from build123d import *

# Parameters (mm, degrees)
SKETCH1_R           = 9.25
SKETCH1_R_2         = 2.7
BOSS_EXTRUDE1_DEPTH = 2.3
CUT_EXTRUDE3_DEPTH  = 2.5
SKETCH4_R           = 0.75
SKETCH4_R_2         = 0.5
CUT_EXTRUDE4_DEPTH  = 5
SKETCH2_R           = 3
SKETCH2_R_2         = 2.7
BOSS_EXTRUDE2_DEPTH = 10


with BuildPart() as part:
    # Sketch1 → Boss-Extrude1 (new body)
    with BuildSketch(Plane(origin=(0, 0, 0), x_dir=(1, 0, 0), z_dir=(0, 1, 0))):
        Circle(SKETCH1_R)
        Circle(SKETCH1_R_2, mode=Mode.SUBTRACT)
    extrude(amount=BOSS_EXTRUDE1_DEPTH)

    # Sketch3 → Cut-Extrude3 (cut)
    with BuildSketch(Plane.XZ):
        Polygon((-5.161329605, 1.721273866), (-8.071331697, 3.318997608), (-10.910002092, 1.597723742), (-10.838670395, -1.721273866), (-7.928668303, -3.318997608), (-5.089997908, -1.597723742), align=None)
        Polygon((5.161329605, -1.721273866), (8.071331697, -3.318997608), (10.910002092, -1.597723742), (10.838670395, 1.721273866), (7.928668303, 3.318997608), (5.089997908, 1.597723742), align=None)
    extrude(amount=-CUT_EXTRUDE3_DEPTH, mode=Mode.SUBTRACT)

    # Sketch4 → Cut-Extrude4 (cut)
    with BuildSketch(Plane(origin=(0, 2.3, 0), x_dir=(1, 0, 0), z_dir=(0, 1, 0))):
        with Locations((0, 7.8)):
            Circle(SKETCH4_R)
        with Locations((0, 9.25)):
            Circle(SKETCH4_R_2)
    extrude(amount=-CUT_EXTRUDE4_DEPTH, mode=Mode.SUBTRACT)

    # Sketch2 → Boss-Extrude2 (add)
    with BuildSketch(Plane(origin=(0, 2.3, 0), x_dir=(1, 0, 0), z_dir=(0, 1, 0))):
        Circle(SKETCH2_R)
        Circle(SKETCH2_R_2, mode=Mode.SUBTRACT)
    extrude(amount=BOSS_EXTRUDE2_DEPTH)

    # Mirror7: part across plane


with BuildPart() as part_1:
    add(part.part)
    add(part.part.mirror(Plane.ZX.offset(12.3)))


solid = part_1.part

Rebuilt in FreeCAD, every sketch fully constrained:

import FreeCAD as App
import Part
import Sketcher

V = App.Vector
Q = App.Units.Quantity


def add_polygon(sketch, points):
    """Adds a closed chain of lines whose ends are joined by coincident constraints."""
    first, n = sketch.GeometryCount, len(points)
    for a, b in zip(points, points[1:] + points[:1]):
        sketch.addGeometry(Part.LineSegment(App.Vector(*a, 0), App.Vector(*b, 0)), False)
    for i in range(n):
        sketch.addConstraint(Sketcher.Constraint("Coincident", first + i, 2, first + (i + 1) % n, 1))

doc = App.newDocument("Part")
body = doc.addObject("PartDesign::Body", "Body")

# Sketch on XZ plane
sketch1 = body.newObject("Sketcher::SketchObject", "Sketch")
sketch1.AttachmentSupport = (doc.getObject("XZ_Plane"), [""])
sketch1.MapMode = "FlatFace"
sketch1.addGeometry([
    Part.Circle(V(0, 0, 0), V(0, 0, 1), 9.2),
    Part.Circle(V(0, 0, 0), V(0, 0, 1), 2.7),
], False)
sketch1.addConstraint([
    Sketcher.Constraint("Coincident", 0, 3, -1, 1),
    Sketcher.Constraint("Coincident", 1, 3, -1, 1),
    Sketcher.Constraint("Diameter", 0, Q("18.5 mm")),
    Sketcher.Constraint("Diameter", 1, Q("5.4 mm")),
])
pad1 = body.newObject("PartDesign::Pad", "Pad")
pad1.Profile = sketch1
pad1.Length = 2.3
pad1.Reversed = True

# Sketch on XZ plane
sketch2 = body.newObject("Sketcher::SketchObject", "Sketch001")
sketch2.AttachmentSupport = (doc.getObject("XZ_Plane"), [""])
sketch2.MapMode = "FlatFace"
add_polygon(sketch2, [(-5.2, 1.7), (-8.1, 3.3), (-10.9, 1.6), (-10.8, -1.7), (-7.9, -3.3), (-5.1, -1.6)])  # lines 0-5
add_polygon(sketch2, [(5.2, -1.7), (8.1, -3.3), (10.9, -1.6), (10.8, 1.7), (7.9, 3.3), (5.1, 1.6)])  # lines 6-11
sketch2.addConstraint([
    Sketcher.Constraint("Symmetric", 0, 2, 6, 2, -1, 1),
    Sketcher.Constraint("Symmetric", 1, 2, 7, 2, -1, 1),
    Sketcher.Constraint("Symmetric", 2, 2, 8, 2, -1, 1),
    Sketcher.Constraint("Symmetric", 3, 2, 9, 2, -1, 1),
    Sketcher.Constraint("Symmetric", 4, 2, 10, 2, -1, 1),
    Sketcher.Constraint("Symmetric", 5, 2, 11, 2, -1, 1),
    Sketcher.Constraint("Parallel", 0, 3),
    Sketcher.Constraint("Parallel", 1, 4),
    Sketcher.Constraint("Parallel", 2, 5),
    Sketcher.Constraint("Horizontal", 3, 2, 6, 2),
    Sketcher.Constraint("Horizontal", 4, 2, 7, 2),
    Sketcher.Constraint("Equal", 0, 1),
    Sketcher.Constraint("Equal", 1, 2),
    Sketcher.Constraint("DistanceX", 3, 2, 6, 2, Q("16 mm")),
    Sketcher.Constraint("DistanceX", 0, 2, -1, 1, Q("8.071332 mm")),
    Sketcher.Constraint("DistanceX", 2, 2, -1, 1, Q("10.83867 mm")),
    Sketcher.Constraint("DistanceX", 1, 2, 0, 2, Q("2.83867 mm")),
    Sketcher.Constraint("DistanceY", 2, 2, 0, 2, Q("5.040271 mm")),
])
pocket1 = body.newObject("PartDesign::Pocket", "Pocket")
pocket1.Profile = sketch2
pocket1.Length = 2.5

# Sketch on XZ plane
sketch3 = body.newObject("Sketcher::SketchObject", "Sketch002")
sketch3.AttachmentSupport = (doc.getObject("XZ_Plane"), [""])
sketch3.MapMode = "FlatFace"
sketch3.AttachmentOffset = App.Placement(V(0, 0, -2.3), App.Rotation())
sketch3.addGeometry([
    Part.Circle(V(0, -7.8, 0), V(0, 0, 1), 0.8),
    Part.Circle(V(0, -9.2, 0), V(0, 0, 1), 0.5),
], False)
sketch3.addConstraint([
    Sketcher.Constraint("PointOnObject", 0, 3, -2),
    Sketcher.Constraint("PointOnObject", 1, 3, -2),
    Sketcher.Constraint("Diameter", 1, Q("1 mm")),
    Sketcher.Constraint("Diameter", 0, Q("1.5 mm")),
    Sketcher.Constraint("DistanceY", 0, 3, -1, 1, Q("7.8 mm")),
    Sketcher.Constraint("DistanceY", 1, 3, -1, 1, Q("9.25 mm")),
])
pocket2 = body.newObject("PartDesign::Pocket", "Pocket001")
pocket2.Profile = sketch3
pocket2.Length = 5
pocket2.Reversed = True

# Sketch on XZ plane
sketch4 = body.newObject("Sketcher::SketchObject", "Sketch003")
sketch4.AttachmentSupport = (doc.getObject("XZ_Plane"), [""])
sketch4.MapMode = "FlatFace"
sketch4.AttachmentOffset = App.Placement(V(0, 0, -2.3), App.Rotation())
sketch4.addGeometry([
    Part.Circle(V(0, 0, 0), V(0, 0, 1), 3),
    Part.Circle(V(0, 0, 0), V(0, 0, 1), 2.7),
], False)
sketch4.addConstraint([
    Sketcher.Constraint("Coincident", 0, 3, -1, 1),
    Sketcher.Constraint("Coincident", 1, 3, -1, 1),
    Sketcher.Constraint("Diameter", 0, Q("6 mm")),
    Sketcher.Constraint("Diameter", 1, Q("5.4 mm")),
])
pad2 = body.newObject("PartDesign::Pad", "Pad001")
pad2.Profile = sketch4
pad2.Length = 10
pad2.Reversed = True
body2 = doc.addObject("PartDesign::Body", "Body001")
doc.recompute()

body2.BaseFeature = body
doc.recompute()

mirroring = doc.addObject("Part::Mirroring", "Mirroring")
mirroring.Source = body
mirroring.Base = V(0, 12.3, 0)
mirroring.Normal = V(0, 1, 0)
body3 = doc.addObject("PartDesign::Body", "Body002")
body3.BaseFeature = mirroring
boolean = body2.newObject("PartDesign::Boolean", "Boolean")
boolean.Type = "Fuse"
boolean.addObjects([body3])
doc.recompute()
mirroring.Visibility = False

doc.recompute()
